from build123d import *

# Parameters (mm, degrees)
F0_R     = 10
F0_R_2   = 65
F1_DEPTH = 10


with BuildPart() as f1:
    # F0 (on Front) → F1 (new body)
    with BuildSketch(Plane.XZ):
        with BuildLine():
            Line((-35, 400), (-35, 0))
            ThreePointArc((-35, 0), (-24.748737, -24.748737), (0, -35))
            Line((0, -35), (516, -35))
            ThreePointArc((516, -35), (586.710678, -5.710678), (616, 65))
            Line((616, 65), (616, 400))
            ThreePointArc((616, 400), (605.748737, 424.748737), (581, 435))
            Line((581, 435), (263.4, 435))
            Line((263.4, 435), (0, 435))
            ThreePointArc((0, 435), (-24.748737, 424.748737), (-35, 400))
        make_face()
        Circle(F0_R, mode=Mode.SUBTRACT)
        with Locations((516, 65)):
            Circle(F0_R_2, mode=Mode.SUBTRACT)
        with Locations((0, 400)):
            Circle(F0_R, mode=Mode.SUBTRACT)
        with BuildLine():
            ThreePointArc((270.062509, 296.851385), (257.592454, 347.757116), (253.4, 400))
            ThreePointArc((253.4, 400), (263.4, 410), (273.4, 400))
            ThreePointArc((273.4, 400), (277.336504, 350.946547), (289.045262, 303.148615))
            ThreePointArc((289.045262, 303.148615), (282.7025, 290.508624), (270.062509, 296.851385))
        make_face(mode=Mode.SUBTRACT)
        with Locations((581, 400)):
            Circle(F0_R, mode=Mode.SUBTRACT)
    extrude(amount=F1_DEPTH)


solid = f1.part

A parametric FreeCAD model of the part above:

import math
import FreeCAD as App
import Part
import Sketcher
from FreeCAD import Vector
Q = App.Units.Quantity

doc = App.newDocument("Part")
body = doc.addObject("PartDesign::Body", "Body")

# Sketch on XZ plane
sketch1 = body.newObject("Sketcher::SketchObject", "Sketch")
sketch1.AttachmentSupport = (doc.getObject("XZ_Plane"), [""])
sketch1.MapMode = "FlatFace"
sketch1.addGeometry(Part.LineSegment(Vector(-35, 400, 0), Vector(-35, 0, 0)), False)
sketch1.addGeometry(Part.ArcOfCircle(Part.Circle(Vector(0.000001, 0.000001, 0), Vector(0, 0, 1), 35.000001), math.radians(-179.999998), math.radians(-90.000002)), False)
sketch1.addGeometry(Part.LineSegment(Vector(0, -35, 0), Vector(516, -35, 0)), False)
sketch1.addGeometry(Part.ArcOfCircle(Part.Circle(Vector(516, 65, 0), Vector(0, 0, 1), 100), math.radians(-90), math.radians(0)), False)
sketch1.addGeometry(Part.LineSegment(Vector(616, 65, 0), Vector(616, 400, 0)), False)
sketch1.addGeometry(Part.ArcOfCircle(Part.Circle(Vector(580.999999, 399.999999, 0), Vector(0, 0, 1), 35.000001), math.radians(0.000002), math.radians(89.999998)), False)
sketch1.addGeometry(Part.LineSegment(Vector(581, 435, 0), Vector(0, 435, 0)), False)
sketch1.addGeometry(Part.ArcOfCircle(Part.Circle(Vector(0.000001, 399.999999, 0), Vector(0, 0, 1), 35.000001), math.radians(90.000002), math.radians(179.999998)), False)
sketch1.addGeometry(Part.Circle(Vector(0, 0, 0), Vector(0, 0, 1), 10), False)
sketch1.addGeometry(Part.Circle(Vector(516, 65, 0), Vector(0, 0, 1), 65), False)
sketch1.addGeometry(Part.Circle(Vector(0, 400, 0), Vector(0, 0, 1), 10), False)
sketch1.addGeometry(Part.ArcOfCircle(Part.Circle(Vector(279.553885, 300.000001, 0), Vector(0, 0, 1), 10), math.radians(-161.647544), math.radians(18.352449)), False)
sketch1.addGeometry(Part.ArcOfCircle(Part.Circle(Vector(581.000036, 400.000005, 0), Vector(0, 0, 1), 327.600036), math.radians(-179.999999), math.radians(-161.64755)), False)
sketch1.addGeometry(Part.ArcOfCircle(Part.Circle(Vector(263.4, 400, 0), Vector(0, 0, 1), 10), math.radians(0), math.radians(180)), False)
sketch1.addGeometry(Part.ArcOfCircle(Part.Circle(Vector(580.999982, 399.999998, 0), Vector(0, 0, 1), 307.599982), math.radians(180), math.radians(198.352451)), False)
sketch1.addGeometry(Part.Circle(Vector(581, 400, 0), Vector(0, 0, 1), 10), False)
sketch1.addConstraint(Sketcher.Constraint("Tangent", 0, 2, 1, 1))
sketch1.addConstraint(Sketcher.Constraint("Tangent", 1, 2, 2, 1))
sketch1.addConstraint(Sketcher.Constraint("Tangent", 2, 2, 3, 1))
sketch1.addConstraint(Sketcher.Constraint("Tangent", 3, 2, 4, 1))
sketch1.addConstraint(Sketcher.Constraint("Tangent", 4, 2, 5, 1))
sketch1.addConstraint(Sketcher.Constraint("Tangent", 5, 2, 6, 1))
sketch1.addConstraint(Sketcher.Constraint("Tangent", 6, 2, 7, 1))
sketch1.addConstraint(Sketcher.Constraint("Tangent", 7, 2, 0, 1))
sketch1.addConstraint(Sketcher.Constraint("Tangent", 11, 1, 12, 2))
sketch1.addConstraint(Sketcher.Constraint("Tangent", 12, 1, 13, 2))
sketch1.addConstraint(Sketcher.Constraint("Tangent", 13, 1, 14, 1))
sketch1.addConstraint(Sketcher.Constraint("Tangent", 14, 2, 11, 2))
sketch1.addConstraint(Sketcher.Constraint("Vertical", 0))
sketch1.addConstraint(Sketcher.Constraint("Horizontal", 2))
sketch1.addConstraint(Sketcher.Constraint("Vertical", 4))
sketch1.addConstraint(Sketcher.Constraint("Horizontal", 6))
sketch1.addConstraint(Sketcher.Constraint("Coincident", 1, 3, -1, 1))
sketch1.addConstraint(Sketcher.Constraint("Coincident", 8, 3, -1, 1))
sketch1.addConstraint(Sketcher.Constraint("Coincident", 9, 3, 3, 3))
sketch1.addConstraint(Sketcher.Constraint("Coincident", 10, 3, 7, 3))
sketch1.addConstraint(Sketcher.Constraint("Coincident", 15, 3, 5, 3))
sketch1.addConstraint(Sketcher.Constraint("Equal", 1, 5))
sketch1.addConstraint(Sketcher.Constraint("Equal", 5, 7))
sketch1.addConstraint(Sketcher.Constraint("Equal", 8, 10))
sketch1.addConstraint(Sketcher.Constraint("Equal", 10, 11))
sketch1.addConstraint(Sketcher.Constraint("Equal", 11, 13))
sketch1.addConstraint(Sketcher.Constraint("Equal", 13, 15))
sketch1.addConstraint(Sketcher.Constraint("Horizontal", 10, 3, 13, 3))
sketch1.addConstraint(Sketcher.Constraint("Horizontal", 7, 3, 14, 3))
sketch1.addConstraint(Sketcher.Constraint("Diameter", 8, Q("20 mm")))
sketch1.addConstraint(Sketcher.Constraint("Diameter", 9, Q("130 mm")))
sketch1.addConstraint(Sketcher.Constraint("Radius", 1, Q("35.000001 mm")))
sketch1.addConstraint(Sketcher.Constraint("Radius", 3, Q("100 mm")))
sketch1.addConstraint(Sketcher.Constraint("DistanceX", 2, 1, 2, 2, Q("516 mm")))
sketch1.addConstraint(Sketcher.Constraint("DistanceY", 0, 2, 0, 1, Q("400 mm")))
sketch1.addConstraint(Sketcher.Constraint("DistanceY", -1, 1, 11, 3, Q("300.000001 mm")))
sketch1.addConstraint(Sketcher.Constraint("DistanceX", -1, 1, 13, 3, Q("263.4 mm")))
sketch1.addConstraint(Sketcher.Constraint("Radius", 14, Q("307.599982 mm")))
sketch1.addConstraint(Sketcher.Constraint("Radius", 12, Q("327.600036 mm")))
pad1 = body.newObject("PartDesign::Pad", "Pad")
pad1.Profile = sketch1
pad1.Length = 10

doc.recompute()
